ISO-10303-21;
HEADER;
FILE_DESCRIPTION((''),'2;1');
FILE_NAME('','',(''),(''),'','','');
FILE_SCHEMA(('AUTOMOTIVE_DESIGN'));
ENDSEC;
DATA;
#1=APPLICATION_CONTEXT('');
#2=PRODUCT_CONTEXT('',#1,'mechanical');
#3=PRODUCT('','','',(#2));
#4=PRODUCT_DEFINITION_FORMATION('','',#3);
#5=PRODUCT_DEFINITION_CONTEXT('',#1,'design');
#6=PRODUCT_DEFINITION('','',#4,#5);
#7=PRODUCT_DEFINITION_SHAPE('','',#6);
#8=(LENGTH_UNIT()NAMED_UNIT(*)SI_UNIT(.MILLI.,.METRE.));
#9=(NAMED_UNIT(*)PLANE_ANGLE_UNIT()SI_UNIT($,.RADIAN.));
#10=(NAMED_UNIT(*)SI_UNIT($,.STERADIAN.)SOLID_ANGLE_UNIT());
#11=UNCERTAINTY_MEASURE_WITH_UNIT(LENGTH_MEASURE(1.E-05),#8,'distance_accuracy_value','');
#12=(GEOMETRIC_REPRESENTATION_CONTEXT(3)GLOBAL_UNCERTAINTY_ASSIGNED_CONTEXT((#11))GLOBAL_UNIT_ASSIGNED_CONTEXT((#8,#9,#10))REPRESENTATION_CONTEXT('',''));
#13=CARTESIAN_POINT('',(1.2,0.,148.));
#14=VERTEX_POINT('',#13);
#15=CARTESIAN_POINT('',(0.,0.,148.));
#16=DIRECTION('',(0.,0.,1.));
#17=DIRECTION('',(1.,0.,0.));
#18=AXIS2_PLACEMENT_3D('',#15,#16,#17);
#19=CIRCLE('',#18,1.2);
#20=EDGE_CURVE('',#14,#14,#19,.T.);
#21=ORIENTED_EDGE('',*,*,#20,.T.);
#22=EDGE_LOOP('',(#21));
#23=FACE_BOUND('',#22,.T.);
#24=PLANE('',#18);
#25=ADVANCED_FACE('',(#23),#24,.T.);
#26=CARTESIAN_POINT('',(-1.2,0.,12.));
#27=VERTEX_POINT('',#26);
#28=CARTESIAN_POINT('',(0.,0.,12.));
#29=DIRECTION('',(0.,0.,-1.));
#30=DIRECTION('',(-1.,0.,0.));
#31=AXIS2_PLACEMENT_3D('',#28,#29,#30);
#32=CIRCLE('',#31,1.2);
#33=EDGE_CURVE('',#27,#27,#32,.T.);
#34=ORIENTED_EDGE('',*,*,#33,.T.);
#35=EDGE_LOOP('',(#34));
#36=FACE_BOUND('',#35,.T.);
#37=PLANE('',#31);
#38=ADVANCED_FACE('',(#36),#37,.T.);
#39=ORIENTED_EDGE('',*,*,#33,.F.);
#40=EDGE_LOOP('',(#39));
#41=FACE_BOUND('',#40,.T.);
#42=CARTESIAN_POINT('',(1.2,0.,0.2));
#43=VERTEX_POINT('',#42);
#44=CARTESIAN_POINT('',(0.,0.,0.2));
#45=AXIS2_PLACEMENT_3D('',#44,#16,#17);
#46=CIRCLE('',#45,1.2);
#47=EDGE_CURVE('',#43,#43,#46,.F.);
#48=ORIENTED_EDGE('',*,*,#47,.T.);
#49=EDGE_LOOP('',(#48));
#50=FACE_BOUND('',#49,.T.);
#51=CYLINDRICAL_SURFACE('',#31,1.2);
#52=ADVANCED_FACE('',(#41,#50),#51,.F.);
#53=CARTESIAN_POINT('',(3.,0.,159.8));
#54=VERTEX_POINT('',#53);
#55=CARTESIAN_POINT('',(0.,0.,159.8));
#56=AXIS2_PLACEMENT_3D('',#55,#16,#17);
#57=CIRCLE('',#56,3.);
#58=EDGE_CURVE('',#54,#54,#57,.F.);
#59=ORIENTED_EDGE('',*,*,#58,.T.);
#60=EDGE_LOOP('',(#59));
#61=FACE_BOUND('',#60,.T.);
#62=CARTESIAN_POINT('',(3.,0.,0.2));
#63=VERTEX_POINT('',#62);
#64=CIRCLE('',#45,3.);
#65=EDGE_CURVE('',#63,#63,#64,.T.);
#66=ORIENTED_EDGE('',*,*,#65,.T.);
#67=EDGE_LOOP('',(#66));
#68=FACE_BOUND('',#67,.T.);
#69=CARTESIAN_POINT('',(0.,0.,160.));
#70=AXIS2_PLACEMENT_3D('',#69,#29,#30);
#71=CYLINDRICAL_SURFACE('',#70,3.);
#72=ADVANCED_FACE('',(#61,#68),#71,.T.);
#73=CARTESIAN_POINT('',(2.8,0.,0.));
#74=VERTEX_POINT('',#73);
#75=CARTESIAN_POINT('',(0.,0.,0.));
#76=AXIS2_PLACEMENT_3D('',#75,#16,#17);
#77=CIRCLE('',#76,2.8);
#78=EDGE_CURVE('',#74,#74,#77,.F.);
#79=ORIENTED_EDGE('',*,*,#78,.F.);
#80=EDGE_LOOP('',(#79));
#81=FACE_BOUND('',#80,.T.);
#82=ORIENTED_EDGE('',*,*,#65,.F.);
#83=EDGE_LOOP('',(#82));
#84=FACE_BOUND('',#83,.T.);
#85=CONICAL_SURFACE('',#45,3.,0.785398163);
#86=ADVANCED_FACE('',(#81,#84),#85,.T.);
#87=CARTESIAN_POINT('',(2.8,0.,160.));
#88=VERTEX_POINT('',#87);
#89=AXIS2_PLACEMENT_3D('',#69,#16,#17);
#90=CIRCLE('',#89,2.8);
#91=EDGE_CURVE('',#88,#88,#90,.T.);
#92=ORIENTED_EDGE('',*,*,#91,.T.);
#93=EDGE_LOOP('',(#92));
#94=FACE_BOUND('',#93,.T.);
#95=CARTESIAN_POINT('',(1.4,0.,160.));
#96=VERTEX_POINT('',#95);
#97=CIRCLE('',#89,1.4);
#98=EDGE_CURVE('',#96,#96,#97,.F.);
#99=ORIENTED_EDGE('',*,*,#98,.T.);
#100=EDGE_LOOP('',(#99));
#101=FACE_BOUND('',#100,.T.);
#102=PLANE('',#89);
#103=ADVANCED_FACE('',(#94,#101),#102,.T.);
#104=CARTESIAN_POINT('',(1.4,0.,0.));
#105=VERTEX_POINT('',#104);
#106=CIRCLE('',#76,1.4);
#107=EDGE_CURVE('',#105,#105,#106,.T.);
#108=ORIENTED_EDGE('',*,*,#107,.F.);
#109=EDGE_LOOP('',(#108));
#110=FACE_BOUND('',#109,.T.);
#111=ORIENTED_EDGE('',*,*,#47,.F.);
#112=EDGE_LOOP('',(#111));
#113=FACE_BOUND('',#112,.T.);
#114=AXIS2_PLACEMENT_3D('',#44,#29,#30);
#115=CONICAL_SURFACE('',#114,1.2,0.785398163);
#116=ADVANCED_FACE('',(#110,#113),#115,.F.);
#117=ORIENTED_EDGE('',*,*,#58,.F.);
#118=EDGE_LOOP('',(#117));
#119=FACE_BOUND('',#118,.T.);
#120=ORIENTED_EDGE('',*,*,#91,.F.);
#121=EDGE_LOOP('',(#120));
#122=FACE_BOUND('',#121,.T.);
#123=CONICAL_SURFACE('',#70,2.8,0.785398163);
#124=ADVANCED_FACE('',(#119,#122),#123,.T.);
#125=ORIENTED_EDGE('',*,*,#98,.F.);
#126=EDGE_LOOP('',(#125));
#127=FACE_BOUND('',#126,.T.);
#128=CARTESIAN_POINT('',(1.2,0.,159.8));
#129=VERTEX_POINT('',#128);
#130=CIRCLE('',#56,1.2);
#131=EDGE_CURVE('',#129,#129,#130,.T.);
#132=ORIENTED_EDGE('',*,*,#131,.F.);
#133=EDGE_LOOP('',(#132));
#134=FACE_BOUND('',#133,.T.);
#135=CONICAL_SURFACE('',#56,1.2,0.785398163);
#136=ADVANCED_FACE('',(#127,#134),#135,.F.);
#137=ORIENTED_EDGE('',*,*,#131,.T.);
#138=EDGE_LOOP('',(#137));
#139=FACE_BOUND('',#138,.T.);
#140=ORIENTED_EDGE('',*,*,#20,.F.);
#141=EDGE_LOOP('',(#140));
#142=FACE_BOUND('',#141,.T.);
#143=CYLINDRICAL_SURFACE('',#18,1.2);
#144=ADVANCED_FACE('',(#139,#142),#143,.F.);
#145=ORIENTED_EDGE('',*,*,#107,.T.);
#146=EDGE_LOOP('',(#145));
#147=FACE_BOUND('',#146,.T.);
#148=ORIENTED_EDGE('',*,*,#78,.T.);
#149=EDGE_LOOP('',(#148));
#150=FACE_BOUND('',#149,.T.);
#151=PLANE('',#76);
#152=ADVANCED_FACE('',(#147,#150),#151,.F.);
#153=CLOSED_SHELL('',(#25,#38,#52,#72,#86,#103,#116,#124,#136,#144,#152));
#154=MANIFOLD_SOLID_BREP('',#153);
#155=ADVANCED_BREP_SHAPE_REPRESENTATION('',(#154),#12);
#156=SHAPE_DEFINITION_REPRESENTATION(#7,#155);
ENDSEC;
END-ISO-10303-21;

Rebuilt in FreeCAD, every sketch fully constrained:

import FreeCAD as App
import Part
import Sketcher


def edges_at(feature, points):
    """Names of the edges that pass closest to the given points."""
    edges = feature.Shape.Edges
    near = lambda p: min(range(len(edges)), key=lambda i: edges[i].distToShape(Part.Vertex(*p))[0])
    return sorted({f"Edge{near(p) + 1}" for p in points})

doc = App.newDocument("Part")
body = doc.addObject("PartDesign::Body", "Body")

sketch1 = doc.addObject("Sketcher::SketchObject", "Sketch")
body.addObject(sketch1)
sketch1.AttachmentSupport = (doc.XY_Plane, [""])
sketch1.MapMode = "FlatFace"
sketch1.addGeometry(Part.Circle(App.Vector(0, 0, 0), App.Vector(0, 0, 1), 3), False)
sketch1.addConstraint([
    Sketcher.Constraint("Coincident", 0, 3, -1, 1),
    Sketcher.Constraint("Diameter", 0, 6.0),
])
pad1 = doc.addObject("PartDesign::Pad", "Pad")
body.addObject(pad1)
pad1.Profile = sketch1
pad1.Length = 160

sketch2 = doc.addObject("Sketcher::SketchObject", "Sketch001")
body.addObject(sketch2)
sketch2.AttachmentSupport = (doc.XY_Plane, [""])
sketch2.MapMode = "FlatFace"
sketch2.AttachmentOffset = App.Placement(App.Vector(0, 0, 160), App.Rotation())
sketch2.addGeometry(Part.Circle(App.Vector(0, 0, 0), App.Vector(0, 0, 1), 1.2), False)
sketch2.addConstraint([
    Sketcher.Constraint("Coincident", 0, 3, -1, 1),
    Sketcher.Constraint("Diameter", 0, 2.4),
])
pocket1 = doc.addObject("PartDesign::Pocket", "Pocket")
body.addObject(pocket1)
pocket1.Profile = sketch2
pocket1.Length = 12

sketch3 = doc.addObject("Sketcher::SketchObject", "Sketch002")
body.addObject(sketch3)
sketch3.AttachmentSupport = (doc.XY_Plane, [""])
sketch3.MapMode = "FlatFace"
sketch3.addGeometry(Part.Circle(App.Vector(0, 0, 0), App.Vector(0, 0, 1), 1.2), False)
sketch3.addConstraint([
    Sketcher.Constraint("Coincident", 0, 3, -1, 1),
    Sketcher.Constraint("Diameter", 0, 2.4),
])
pocket2 = doc.addObject("PartDesign::Pocket", "Pocket001")
body.addObject(pocket2)
pocket2.Profile = sketch3
pocket2.Length = 12
pocket2.Reversed = True
doc.recompute()

chamfer = doc.addObject("PartDesign::Chamfer", "Chamfer")
body.addObject(chamfer)
chamfer.Base = (pocket2, edges_at(pocket2, [
    (1.2, 0, 0),
    (-3, 0, 0),
    (-3, 0, 160),
    (-1.2, 0, 160),
]))
chamfer.Size = 0.2

doc.recompute()
